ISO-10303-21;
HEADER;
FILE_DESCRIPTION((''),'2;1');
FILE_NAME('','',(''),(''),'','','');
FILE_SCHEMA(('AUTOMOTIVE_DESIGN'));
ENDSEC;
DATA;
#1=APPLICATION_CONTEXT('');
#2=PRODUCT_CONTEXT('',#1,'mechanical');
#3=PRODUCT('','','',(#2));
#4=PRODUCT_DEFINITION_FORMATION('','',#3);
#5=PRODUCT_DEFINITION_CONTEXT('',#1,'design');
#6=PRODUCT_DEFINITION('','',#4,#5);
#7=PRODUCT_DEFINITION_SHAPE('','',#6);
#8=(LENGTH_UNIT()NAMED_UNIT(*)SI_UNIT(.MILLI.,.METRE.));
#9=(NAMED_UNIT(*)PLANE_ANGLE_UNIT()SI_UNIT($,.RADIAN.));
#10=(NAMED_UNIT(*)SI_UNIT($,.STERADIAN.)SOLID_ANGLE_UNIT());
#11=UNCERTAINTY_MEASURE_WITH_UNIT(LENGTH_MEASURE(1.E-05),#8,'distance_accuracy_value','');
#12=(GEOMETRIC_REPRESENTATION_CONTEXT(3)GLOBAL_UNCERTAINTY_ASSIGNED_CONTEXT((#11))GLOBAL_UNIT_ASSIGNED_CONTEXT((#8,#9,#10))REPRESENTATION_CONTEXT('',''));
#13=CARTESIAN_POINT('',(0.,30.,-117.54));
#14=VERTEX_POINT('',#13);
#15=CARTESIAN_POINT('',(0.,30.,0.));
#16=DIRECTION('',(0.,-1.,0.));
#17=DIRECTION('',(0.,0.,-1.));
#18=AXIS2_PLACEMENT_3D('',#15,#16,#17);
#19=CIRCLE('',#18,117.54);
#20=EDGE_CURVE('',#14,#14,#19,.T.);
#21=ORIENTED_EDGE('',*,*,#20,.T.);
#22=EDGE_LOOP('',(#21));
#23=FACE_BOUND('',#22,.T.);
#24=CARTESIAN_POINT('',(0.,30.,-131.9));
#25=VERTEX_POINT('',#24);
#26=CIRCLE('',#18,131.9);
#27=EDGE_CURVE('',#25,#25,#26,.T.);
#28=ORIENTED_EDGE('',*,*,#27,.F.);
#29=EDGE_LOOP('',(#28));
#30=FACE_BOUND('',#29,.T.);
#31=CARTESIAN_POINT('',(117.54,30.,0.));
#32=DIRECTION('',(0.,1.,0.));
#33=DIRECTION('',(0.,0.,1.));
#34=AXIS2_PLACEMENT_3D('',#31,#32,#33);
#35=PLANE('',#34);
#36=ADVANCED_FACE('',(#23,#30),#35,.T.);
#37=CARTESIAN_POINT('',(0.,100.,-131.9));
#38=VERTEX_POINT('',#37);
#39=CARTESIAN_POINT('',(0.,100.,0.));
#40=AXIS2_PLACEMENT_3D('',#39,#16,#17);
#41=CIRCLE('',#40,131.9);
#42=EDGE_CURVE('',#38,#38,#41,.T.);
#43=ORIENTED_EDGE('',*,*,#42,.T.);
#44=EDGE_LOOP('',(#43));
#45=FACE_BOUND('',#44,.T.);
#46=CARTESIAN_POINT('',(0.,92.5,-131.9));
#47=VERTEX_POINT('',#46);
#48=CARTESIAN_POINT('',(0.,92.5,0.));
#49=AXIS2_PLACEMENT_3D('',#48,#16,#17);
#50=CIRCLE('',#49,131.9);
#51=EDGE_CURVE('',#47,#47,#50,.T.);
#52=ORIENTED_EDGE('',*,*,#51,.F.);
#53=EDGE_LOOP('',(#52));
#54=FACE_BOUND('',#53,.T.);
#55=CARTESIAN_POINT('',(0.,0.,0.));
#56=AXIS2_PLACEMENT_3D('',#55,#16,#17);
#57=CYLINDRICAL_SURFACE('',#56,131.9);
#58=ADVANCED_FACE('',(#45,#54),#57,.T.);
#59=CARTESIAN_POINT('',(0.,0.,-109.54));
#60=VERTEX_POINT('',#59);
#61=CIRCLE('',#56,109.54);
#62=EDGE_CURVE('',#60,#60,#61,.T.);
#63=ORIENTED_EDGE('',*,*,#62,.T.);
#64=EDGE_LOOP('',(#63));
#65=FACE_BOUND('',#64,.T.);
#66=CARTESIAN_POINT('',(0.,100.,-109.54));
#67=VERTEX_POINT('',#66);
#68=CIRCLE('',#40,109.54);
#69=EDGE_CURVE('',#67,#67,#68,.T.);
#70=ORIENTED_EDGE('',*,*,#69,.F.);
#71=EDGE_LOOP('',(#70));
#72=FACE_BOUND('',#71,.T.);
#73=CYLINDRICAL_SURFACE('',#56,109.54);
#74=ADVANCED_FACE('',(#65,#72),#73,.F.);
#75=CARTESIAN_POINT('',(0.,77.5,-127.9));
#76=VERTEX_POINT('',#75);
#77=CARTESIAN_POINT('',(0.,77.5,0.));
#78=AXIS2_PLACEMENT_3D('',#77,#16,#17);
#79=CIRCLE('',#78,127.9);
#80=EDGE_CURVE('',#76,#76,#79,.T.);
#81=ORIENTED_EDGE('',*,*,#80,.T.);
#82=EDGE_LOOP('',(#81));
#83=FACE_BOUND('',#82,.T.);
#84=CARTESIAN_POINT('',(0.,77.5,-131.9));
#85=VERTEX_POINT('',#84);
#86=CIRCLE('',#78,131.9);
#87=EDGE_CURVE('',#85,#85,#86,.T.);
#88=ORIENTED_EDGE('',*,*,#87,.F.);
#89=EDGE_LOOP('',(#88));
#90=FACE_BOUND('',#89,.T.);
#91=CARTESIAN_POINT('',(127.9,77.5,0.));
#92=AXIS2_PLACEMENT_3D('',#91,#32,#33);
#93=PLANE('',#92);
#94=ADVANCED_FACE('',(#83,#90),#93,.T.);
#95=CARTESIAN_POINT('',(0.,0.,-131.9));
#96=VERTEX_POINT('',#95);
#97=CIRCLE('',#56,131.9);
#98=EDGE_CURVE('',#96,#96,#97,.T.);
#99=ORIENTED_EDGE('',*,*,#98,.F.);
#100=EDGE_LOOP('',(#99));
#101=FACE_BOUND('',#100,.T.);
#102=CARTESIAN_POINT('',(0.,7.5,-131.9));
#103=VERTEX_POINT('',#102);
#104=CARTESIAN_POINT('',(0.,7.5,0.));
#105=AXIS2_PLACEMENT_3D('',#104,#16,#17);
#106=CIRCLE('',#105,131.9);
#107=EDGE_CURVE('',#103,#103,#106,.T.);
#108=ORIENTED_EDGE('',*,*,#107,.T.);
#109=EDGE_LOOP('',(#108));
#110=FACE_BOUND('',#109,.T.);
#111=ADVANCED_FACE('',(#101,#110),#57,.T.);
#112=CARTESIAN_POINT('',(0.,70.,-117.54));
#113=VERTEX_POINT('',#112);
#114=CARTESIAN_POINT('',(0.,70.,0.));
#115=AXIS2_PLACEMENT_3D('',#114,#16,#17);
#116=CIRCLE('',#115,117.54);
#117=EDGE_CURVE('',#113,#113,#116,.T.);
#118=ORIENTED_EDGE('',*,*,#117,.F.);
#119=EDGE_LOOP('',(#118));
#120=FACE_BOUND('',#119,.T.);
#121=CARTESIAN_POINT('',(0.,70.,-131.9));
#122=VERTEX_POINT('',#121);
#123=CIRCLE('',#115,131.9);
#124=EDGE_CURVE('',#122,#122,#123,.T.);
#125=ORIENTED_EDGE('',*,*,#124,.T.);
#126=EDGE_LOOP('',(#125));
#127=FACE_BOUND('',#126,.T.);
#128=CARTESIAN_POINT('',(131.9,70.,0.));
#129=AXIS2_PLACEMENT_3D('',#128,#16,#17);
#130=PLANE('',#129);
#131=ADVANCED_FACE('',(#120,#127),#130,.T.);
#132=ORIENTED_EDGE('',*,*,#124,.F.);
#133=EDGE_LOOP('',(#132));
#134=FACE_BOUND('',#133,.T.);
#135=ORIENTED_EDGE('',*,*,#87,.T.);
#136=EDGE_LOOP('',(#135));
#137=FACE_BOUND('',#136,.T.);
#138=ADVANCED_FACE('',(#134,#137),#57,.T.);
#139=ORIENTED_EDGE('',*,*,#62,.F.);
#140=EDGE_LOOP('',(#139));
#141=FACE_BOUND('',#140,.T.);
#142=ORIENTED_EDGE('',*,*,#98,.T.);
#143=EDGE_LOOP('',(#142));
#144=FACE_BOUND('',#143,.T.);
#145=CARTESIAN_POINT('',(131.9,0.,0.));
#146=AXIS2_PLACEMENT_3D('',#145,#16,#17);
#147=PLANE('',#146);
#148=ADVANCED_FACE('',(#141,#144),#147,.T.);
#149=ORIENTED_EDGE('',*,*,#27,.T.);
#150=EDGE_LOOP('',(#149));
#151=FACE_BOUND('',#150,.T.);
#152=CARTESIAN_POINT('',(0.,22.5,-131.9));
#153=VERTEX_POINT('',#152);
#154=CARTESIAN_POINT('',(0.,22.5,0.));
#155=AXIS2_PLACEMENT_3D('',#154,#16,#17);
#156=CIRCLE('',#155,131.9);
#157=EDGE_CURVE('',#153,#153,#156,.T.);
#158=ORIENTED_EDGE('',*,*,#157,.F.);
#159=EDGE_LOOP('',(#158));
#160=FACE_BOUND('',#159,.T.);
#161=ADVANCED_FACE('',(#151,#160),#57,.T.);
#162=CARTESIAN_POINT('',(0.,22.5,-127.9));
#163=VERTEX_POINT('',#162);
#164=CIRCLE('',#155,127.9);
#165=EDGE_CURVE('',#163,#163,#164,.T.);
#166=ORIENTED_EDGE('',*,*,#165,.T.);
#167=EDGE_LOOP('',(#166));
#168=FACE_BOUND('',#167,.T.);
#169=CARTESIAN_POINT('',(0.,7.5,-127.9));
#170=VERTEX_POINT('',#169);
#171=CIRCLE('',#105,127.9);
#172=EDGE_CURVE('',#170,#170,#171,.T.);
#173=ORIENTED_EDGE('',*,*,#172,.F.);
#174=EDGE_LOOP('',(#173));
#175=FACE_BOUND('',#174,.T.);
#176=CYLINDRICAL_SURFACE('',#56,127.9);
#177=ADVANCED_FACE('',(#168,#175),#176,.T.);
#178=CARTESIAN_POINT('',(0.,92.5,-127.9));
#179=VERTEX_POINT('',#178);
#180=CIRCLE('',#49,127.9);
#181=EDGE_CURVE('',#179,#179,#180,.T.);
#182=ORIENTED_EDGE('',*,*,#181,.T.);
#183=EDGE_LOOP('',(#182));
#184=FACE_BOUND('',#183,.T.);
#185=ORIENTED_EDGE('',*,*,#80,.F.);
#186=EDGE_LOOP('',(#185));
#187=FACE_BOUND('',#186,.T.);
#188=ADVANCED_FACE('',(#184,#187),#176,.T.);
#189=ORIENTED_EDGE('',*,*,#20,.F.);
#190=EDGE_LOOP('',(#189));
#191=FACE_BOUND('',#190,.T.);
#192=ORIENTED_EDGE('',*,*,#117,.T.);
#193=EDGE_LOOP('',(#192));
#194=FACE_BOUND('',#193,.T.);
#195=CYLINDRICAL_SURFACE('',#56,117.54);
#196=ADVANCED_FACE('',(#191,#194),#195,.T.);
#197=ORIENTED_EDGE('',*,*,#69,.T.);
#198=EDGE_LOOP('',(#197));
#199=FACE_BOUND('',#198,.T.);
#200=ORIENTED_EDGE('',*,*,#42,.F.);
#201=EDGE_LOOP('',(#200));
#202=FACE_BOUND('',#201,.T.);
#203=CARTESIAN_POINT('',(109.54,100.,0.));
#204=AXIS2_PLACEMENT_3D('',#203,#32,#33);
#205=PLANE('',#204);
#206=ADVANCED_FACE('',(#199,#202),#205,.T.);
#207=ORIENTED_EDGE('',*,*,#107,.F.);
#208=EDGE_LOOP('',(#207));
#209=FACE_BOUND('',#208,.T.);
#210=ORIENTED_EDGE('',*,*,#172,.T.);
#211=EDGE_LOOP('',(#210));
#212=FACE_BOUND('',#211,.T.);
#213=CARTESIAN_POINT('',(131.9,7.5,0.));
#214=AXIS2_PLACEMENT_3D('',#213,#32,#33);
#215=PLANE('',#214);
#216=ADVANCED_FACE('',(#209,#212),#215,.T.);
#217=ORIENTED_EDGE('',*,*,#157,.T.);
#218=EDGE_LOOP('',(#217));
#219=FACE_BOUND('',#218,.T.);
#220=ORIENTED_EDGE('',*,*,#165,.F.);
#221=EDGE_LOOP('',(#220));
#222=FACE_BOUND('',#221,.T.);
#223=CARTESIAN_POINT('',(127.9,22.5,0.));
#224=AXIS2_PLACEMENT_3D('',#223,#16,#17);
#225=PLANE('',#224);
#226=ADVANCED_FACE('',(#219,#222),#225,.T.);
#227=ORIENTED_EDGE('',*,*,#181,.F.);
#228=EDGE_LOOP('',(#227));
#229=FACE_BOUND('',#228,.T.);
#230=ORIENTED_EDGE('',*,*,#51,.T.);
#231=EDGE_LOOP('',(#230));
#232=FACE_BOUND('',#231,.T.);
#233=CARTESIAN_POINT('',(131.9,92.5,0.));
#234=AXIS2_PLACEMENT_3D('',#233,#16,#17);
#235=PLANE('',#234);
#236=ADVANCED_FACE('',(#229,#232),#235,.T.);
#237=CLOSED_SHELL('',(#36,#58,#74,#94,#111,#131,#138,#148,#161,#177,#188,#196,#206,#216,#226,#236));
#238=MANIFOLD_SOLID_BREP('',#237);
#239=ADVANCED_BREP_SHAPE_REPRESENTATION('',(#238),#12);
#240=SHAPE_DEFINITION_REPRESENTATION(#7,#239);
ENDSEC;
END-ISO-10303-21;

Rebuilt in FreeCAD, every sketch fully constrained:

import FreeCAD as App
import Part
import Sketcher
from FreeCAD import Vector
Q = App.Units.Quantity


def add_polygon(sketch, points):
    """Adds a closed chain of lines whose ends are joined by coincident constraints."""
    first, n = sketch.GeometryCount, len(points)
    for a, b in zip(points, points[1:] + points[:1]):
        sketch.addGeometry(Part.LineSegment(App.Vector(*a, 0), App.Vector(*b, 0)), False)
    for i in range(n):
        sketch.addConstraint(Sketcher.Constraint("Coincident", first + i, 2, first + (i + 1) % n, 1))

doc = App.newDocument("Part")
body = doc.addObject("PartDesign::Body", "Body")

sketch1 = body.newObject("Sketcher::SketchObject", "Sketch")
sketch1.AttachmentSupport = (doc.getObject("XY_Plane"), [""])
sketch1.MapMode = "FlatFace"
add_polygon(sketch1, [(131.9, 100), (109.5, 100), (109.5, 0), (131.9, 0), (131.9, 7.5), (127.9, 7.5), (127.9, 22.5), (131.9, 22.5), (131.9, 30), (117.5, 30), (117.5, 70), (131.9, 70), (131.9, 77.5), (127.9, 77.5), (127.9, 92.5), (131.9, 92.5)])
sketch1.addConstraint(Sketcher.Constraint("Horizontal", 0))
sketch1.addConstraint(Sketcher.Constraint("Vertical", 1))
sketch1.addConstraint(Sketcher.Constraint("Horizontal", 2))
sketch1.addConstraint(Sketcher.Constraint("Vertical", 3))
sketch1.addConstraint(Sketcher.Constraint("Horizontal", 4))
sketch1.addConstraint(Sketcher.Constraint("Vertical", 5))
sketch1.addConstraint(Sketcher.Constraint("Horizontal", 6))
sketch1.addConstraint(Sketcher.Constraint("Vertical", 7))
sketch1.addConstraint(Sketcher.Constraint("Horizontal", 8))
sketch1.addConstraint(Sketcher.Constraint("Vertical", 9))
sketch1.addConstraint(Sketcher.Constraint("Horizontal", 10))
sketch1.addConstraint(Sketcher.Constraint("Vertical", 11))
sketch1.addConstraint(Sketcher.Constraint("Horizontal", 12))
sketch1.addConstraint(Sketcher.Constraint("Vertical", 13))
sketch1.addConstraint(Sketcher.Constraint("Horizontal", 14))
sketch1.addConstraint(Sketcher.Constraint("Vertical", 15))
sketch1.addConstraint(Sketcher.Constraint("PointOnObject", 1, 2, -1))
sketch1.addConstraint(Sketcher.Constraint("Vertical", 3, 2, 6, 2))
sketch1.addConstraint(Sketcher.Constraint("Vertical", 7, 2, 10, 2))
sketch1.addConstraint(Sketcher.Constraint("Vertical", 5, 2, 12, 2))
sketch1.addConstraint(Sketcher.Constraint("Vertical", 11, 2, 14, 2))
sketch1.addConstraint(Sketcher.Constraint("Equal", 3, 7))
sketch1.addConstraint(Sketcher.Constraint("Equal", 7, 11))
sketch1.addConstraint(Sketcher.Constraint("Equal", 5, 13))
sketch1.addConstraint(Sketcher.Constraint("Equal", 11, 15))
sketch1.addConstraint(Sketcher.Constraint("DistanceX", 4, 2, 4, 1, Q("4 mm")))
sketch1.addConstraint(Sketcher.Constraint("DistanceY", 1, 2, 1, 1, Q("100 mm")))
sketch1.addConstraint(Sketcher.Constraint("DistanceY", 5, 1, 5, 2, Q("15 mm")))
sketch1.addConstraint(Sketcher.Constraint("DistanceY", 9, 1, 9, 2, Q("40 mm")))
sketch1.addConstraint(Sketcher.Constraint("DistanceX", 0, 2, 9, 2, Q("8 mm")))
sketch1.addConstraint(Sketcher.Constraint("DistanceX", 0, 2, 0, 1, Q("22.36 mm")))
sketch1.addConstraint(Sketcher.Constraint("DistanceX", -1, 1, 2, 2, Q("131.9 mm")))
revolution = body.newObject("PartDesign::Revolution", "Revolution")
revolution.Profile = sketch1
revolution.ReferenceAxis = (sketch1, ["V_Axis"])
revolution.Angle = 360

doc.recompute()
